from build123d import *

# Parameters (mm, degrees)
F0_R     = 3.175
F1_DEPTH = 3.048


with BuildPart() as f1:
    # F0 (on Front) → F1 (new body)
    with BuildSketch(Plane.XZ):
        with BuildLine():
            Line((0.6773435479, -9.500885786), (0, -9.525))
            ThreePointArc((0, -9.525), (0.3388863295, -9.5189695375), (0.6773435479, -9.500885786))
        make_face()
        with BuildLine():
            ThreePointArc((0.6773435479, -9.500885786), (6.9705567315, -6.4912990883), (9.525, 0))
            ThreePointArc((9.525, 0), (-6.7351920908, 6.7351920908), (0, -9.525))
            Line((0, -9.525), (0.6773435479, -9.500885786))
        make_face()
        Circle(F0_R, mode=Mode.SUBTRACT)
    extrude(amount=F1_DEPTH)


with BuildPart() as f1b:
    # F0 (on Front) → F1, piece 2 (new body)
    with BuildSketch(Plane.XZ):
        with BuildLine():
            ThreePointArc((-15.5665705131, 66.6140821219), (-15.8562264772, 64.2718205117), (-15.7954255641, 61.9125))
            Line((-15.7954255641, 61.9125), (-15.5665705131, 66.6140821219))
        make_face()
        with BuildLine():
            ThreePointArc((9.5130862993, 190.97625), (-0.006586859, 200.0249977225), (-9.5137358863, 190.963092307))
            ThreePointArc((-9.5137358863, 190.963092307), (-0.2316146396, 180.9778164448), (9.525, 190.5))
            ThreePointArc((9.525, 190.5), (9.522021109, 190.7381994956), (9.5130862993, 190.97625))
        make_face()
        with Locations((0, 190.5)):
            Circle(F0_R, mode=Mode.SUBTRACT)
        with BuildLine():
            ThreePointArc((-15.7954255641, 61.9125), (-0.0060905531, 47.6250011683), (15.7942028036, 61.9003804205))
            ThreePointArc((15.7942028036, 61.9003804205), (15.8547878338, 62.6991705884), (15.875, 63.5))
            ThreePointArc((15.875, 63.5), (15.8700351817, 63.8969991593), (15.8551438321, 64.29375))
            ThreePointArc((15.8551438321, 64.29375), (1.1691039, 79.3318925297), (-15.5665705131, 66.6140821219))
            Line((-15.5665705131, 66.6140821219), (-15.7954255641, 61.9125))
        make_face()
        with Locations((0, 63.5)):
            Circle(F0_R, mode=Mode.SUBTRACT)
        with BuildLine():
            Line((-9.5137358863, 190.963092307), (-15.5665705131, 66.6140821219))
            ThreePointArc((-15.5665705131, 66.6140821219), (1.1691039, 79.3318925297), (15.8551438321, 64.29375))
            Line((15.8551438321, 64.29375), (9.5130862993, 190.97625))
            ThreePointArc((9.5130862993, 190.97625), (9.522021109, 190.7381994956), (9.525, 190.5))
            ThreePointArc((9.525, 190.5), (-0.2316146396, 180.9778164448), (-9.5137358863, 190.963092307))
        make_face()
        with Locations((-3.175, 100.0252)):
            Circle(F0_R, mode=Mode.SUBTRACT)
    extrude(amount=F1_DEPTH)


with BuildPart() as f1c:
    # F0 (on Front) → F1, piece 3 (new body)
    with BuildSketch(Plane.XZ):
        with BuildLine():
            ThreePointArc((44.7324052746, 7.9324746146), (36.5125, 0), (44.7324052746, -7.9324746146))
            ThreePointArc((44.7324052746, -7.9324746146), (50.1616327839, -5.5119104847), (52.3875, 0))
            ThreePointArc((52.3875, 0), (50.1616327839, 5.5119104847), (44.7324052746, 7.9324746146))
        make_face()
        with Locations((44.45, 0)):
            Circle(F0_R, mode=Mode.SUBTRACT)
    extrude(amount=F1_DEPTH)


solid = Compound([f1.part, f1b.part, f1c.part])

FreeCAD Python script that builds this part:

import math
import FreeCAD as App
import Part
import Sketcher
from FreeCAD import Vector
Q = App.Units.Quantity

doc = App.newDocument("Part")
body = doc.addObject("PartDesign::Body", "Body")

sketch1 = doc.addObject("Sketcher::SketchObject", "Sketch")
body.addObject(sketch1)
sketch1.AttachmentSupport = (doc.XZ_Plane, [""])
sketch1.MapMode = "FlatFace"
sketch1.addGeometry(Part.ArcOfCircle(Part.Circle(Vector(0, 0, 0), Vector(0, 0, 1), 9.5), math.radians(-90), math.radians(-85.92)), False)
sketch1.addGeometry(Part.ArcOfCircle(Part.Circle(Vector(0, 0, 0), Vector(0, 0, 1), 9.5), math.radians(-86), math.radians(0)), False)
sketch1.addGeometry(Part.ArcOfCircle(Part.Circle(Vector(0, 0, 0), Vector(0, 0, 1), 9.5), math.radians(0), math.radians(270)), False)
sketch1.addGeometry(Part.Circle(Vector(0, 0, 0), Vector(0, 0, 1), 3.2), False)
sketch1.addConstraint(Sketcher.Constraint("Tangent", 0, 2, 1, 1))
sketch1.addConstraint(Sketcher.Constraint("Tangent", 1, 2, 2, 1))
sketch1.addConstraint(Sketcher.Constraint("Tangent", 2, 2, 0, 1))
sketch1.addConstraint(Sketcher.Constraint("Coincident", 0, 3, -1, 1))
sketch1.addConstraint(Sketcher.Constraint("Coincident", 3, 3, -1, 1))
sketch1.addConstraint(Sketcher.Constraint("PointOnObject", 1, 2, -1))
sketch1.addConstraint(Sketcher.Constraint("PointOnObject", 2, 2, -2))
sketch1.addConstraint(Sketcher.Constraint("Diameter", 3, Q("0.25 in")))
sketch1.addConstraint(Sketcher.Constraint("Radius", 0, Q("0.375 in")))
sketch1.addConstraint(Sketcher.Constraint("DistanceX", -1, 1, 0, 2, Q("0.677344 mm")))
pad1 = doc.addObject("PartDesign::Pad", "Pad")
body.addObject(pad1)
pad1.Profile = sketch1
pad1.Length = Q("0.12 in")
body2 = doc.addObject("PartDesign::Body", "Body001")

sketch2 = doc.addObject("Sketcher::SketchObject", "Sketch001")
body2.addObject(sketch2)
sketch2.AttachmentSupport = (doc.getObject("XZ_Plane001"), [""])
sketch2.MapMode = "FlatFace"
sketch2.addGeometry(Part.ArcOfCircle(Part.Circle(Vector(0, 63.5, 0), Vector(0, 0, 1), 15.9), math.radians(168.69), math.radians(185.74)), False)
sketch2.addGeometry(Part.ArcOfCircle(Part.Circle(Vector(0, 63.5, 0), Vector(0, 0, 1), 15.9), math.radians(-174), math.radians(-6)), False)
sketch2.addGeometry(Part.ArcOfCircle(Part.Circle(Vector(0, 63.5, 0), Vector(0, 0, 1), 15.9), math.radians(-5.78), math.radians(0)), False)
sketch2.addGeometry(Part.ArcOfCircle(Part.Circle(Vector(0, 63.5, 0), Vector(0, 0, 1), 15.9), math.radians(0), math.radians(2.87)), False)
sketch2.addGeometry(Part.LineSegment(Vector(15.9, 64.3, 0), Vector(9.5, 191, 0)), False)
sketch2.addGeometry(Part.ArcOfCircle(Part.Circle(Vector(0, 190.5, 0), Vector(0, 0, 1), 9.5), math.radians(3), math.radians(177)), False)
sketch2.addGeometry(Part.LineSegment(Vector(-9.5, 191, 0), Vector(-15.6, 66.6, 0)), False)
sketch2.addGeometry(Part.Circle(Vector(-3.2, 100, 0), Vector(0, 0, 1), 3.2), False)
sketch2.addGeometry(Part.Circle(Vector(0, 63.5, 0), Vector(0, 0, 1), 3.2), False)
sketch2.addGeometry(Part.Circle(Vector(0, 190.5, 0), Vector(0, 0, 1), 3.2), False)
sketch2.addConstraint(Sketcher.Constraint("Tangent", 0, 2, 1, 1))
sketch2.addConstraint(Sketcher.Constraint("Tangent", 1, 2, 2, 1))
sketch2.addConstraint(Sketcher.Constraint("Tangent", 2, 2, 3, 1))
sketch2.addConstraint(Sketcher.Constraint("Tangent", 3, 2, 4, 1))
sketch2.addConstraint(Sketcher.Constraint("Tangent", 4, 2, 5, 1))
sketch2.addConstraint(Sketcher.Constraint("Tangent", 5, 2, 6, 1))
sketch2.addConstraint(Sketcher.Constraint("Coincident", 6, 2, 0, 1))
sketch2.addConstraint(Sketcher.Constraint("Coincident", 2, 3, 0, 3))
sketch2.addConstraint(Sketcher.Constraint("Coincident", 8, 3, 0, 3))
sketch2.addConstraint(Sketcher.Constraint("Coincident", 9, 3, 5, 3))
sketch2.addConstraint(Sketcher.Constraint("Equal", 2, 3))
sketch2.addConstraint(Sketcher.Constraint("Equal", 7, 8))
sketch2.addConstraint(Sketcher.Constraint("Equal", 8, 9))
sketch2.addConstraint(Sketcher.Constraint("PointOnObject", 0, 3, -2))
sketch2.addConstraint(Sketcher.Constraint("PointOnObject", 5, 3, -2))
sketch2.addConstraint(Sketcher.Constraint("Horizontal", 8, 3, 2, 2))
sketch2.addConstraint(Sketcher.Constraint("Diameter", 7, Q("0.25 in")))
sketch2.addConstraint(Sketcher.Constraint("Radius", 0, Q("0.625 in")))
sketch2.addConstraint(Sketcher.Constraint("Radius", 5, Q("0.375 in")))
sketch2.addConstraint(Sketcher.Constraint("DistanceY", 3, 3, 5, 3, Q("5 in")))
sketch2.addConstraint(Sketcher.Constraint("DistanceY", -1, 1, 0, 3, Q("2.5 in")))
sketch2.addConstraint(Sketcher.Constraint("DistanceX", 7, 3, -1, 1, Q("0.125 in")))
sketch2.addConstraint(Sketcher.Constraint("DistanceY", -1, 1, 7, 3, Q("3.938 in")))
sketch2.addConstraint(Sketcher.Constraint("DistanceY", -1, 1, 0, 2, Q("2.4375 in")))
sketch2.addConstraint(Sketcher.Constraint("DistanceY", -1, 1, 1, 2, Q("61.90038 mm")))
sketch2.addConstraint(Sketcher.Constraint("DistanceX", 6, 2, -1, 1, Q("15.566571 mm")))
pad2 = doc.addObject("PartDesign::Pad", "Pad001")
body2.addObject(pad2)
pad2.Profile = sketch2
pad2.Length = Q("0.12 in")
body3 = doc.addObject("PartDesign::Body", "Body002")

sketch3 = doc.addObject("Sketcher::SketchObject", "Sketch002")
body3.addObject(sketch3)
sketch3.AttachmentSupport = (doc.getObject("XZ_Plane002"), [""])
sketch3.MapMode = "FlatFace"
sketch3.addGeometry(Part.ArcOfCircle(Part.Circle(Vector(44.5, 0, 0), Vector(0, 0, 1), 7.9), math.radians(88), math.radians(272)), False)
sketch3.addGeometry(Part.ArcOfCircle(Part.Circle(Vector(44.5, 0, 0), Vector(0, 0, 1), 7.9), math.radians(-88), math.radians(0)), False)
sketch3.addGeometry(Part.ArcOfCircle(Part.Circle(Vector(44.5, 0, 0), Vector(0, 0, 1), 7.9), math.radians(0), math.radians(88)), False)
sketch3.addGeometry(Part.Circle(Vector(44.5, 0, 0), Vector(0, 0, 1), 3.2), False)
sketch3.addConstraint(Sketcher.Constraint("Tangent", 0, 2, 1, 1))
sketch3.addConstraint(Sketcher.Constraint("Tangent", 1, 2, 2, 1))
sketch3.addConstraint(Sketcher.Constraint("Tangent", 2, 2, 0, 1))
sketch3.addConstraint(Sketcher.Constraint("Coincident", 3, 3, 0, 3))
sketch3.addConstraint(Sketcher.Constraint("Symmetric", 0, 2, 2, 2, -1))
sketch3.addConstraint(Sketcher.Constraint("PointOnObject", 1, 2, -1))
sketch3.addConstraint(Sketcher.Constraint("Diameter", 3, Q("0.25 in")))
sketch3.addConstraint(Sketcher.Constraint("Radius", 0, Q("0.3125 in")))
sketch3.addConstraint(Sketcher.Constraint("DistanceX", -1, 1, 0, 3, Q("1.75 in")))
sketch3.addConstraint(Sketcher.Constraint("DistanceX", -1, 1, 0, 2, Q("44.732405 mm")))
pad3 = doc.addObject("PartDesign::Pad", "Pad002")
body3.addObject(pad3)
pad3.Profile = sketch3
pad3.Length = Q("0.12 in")

doc.recompute()
